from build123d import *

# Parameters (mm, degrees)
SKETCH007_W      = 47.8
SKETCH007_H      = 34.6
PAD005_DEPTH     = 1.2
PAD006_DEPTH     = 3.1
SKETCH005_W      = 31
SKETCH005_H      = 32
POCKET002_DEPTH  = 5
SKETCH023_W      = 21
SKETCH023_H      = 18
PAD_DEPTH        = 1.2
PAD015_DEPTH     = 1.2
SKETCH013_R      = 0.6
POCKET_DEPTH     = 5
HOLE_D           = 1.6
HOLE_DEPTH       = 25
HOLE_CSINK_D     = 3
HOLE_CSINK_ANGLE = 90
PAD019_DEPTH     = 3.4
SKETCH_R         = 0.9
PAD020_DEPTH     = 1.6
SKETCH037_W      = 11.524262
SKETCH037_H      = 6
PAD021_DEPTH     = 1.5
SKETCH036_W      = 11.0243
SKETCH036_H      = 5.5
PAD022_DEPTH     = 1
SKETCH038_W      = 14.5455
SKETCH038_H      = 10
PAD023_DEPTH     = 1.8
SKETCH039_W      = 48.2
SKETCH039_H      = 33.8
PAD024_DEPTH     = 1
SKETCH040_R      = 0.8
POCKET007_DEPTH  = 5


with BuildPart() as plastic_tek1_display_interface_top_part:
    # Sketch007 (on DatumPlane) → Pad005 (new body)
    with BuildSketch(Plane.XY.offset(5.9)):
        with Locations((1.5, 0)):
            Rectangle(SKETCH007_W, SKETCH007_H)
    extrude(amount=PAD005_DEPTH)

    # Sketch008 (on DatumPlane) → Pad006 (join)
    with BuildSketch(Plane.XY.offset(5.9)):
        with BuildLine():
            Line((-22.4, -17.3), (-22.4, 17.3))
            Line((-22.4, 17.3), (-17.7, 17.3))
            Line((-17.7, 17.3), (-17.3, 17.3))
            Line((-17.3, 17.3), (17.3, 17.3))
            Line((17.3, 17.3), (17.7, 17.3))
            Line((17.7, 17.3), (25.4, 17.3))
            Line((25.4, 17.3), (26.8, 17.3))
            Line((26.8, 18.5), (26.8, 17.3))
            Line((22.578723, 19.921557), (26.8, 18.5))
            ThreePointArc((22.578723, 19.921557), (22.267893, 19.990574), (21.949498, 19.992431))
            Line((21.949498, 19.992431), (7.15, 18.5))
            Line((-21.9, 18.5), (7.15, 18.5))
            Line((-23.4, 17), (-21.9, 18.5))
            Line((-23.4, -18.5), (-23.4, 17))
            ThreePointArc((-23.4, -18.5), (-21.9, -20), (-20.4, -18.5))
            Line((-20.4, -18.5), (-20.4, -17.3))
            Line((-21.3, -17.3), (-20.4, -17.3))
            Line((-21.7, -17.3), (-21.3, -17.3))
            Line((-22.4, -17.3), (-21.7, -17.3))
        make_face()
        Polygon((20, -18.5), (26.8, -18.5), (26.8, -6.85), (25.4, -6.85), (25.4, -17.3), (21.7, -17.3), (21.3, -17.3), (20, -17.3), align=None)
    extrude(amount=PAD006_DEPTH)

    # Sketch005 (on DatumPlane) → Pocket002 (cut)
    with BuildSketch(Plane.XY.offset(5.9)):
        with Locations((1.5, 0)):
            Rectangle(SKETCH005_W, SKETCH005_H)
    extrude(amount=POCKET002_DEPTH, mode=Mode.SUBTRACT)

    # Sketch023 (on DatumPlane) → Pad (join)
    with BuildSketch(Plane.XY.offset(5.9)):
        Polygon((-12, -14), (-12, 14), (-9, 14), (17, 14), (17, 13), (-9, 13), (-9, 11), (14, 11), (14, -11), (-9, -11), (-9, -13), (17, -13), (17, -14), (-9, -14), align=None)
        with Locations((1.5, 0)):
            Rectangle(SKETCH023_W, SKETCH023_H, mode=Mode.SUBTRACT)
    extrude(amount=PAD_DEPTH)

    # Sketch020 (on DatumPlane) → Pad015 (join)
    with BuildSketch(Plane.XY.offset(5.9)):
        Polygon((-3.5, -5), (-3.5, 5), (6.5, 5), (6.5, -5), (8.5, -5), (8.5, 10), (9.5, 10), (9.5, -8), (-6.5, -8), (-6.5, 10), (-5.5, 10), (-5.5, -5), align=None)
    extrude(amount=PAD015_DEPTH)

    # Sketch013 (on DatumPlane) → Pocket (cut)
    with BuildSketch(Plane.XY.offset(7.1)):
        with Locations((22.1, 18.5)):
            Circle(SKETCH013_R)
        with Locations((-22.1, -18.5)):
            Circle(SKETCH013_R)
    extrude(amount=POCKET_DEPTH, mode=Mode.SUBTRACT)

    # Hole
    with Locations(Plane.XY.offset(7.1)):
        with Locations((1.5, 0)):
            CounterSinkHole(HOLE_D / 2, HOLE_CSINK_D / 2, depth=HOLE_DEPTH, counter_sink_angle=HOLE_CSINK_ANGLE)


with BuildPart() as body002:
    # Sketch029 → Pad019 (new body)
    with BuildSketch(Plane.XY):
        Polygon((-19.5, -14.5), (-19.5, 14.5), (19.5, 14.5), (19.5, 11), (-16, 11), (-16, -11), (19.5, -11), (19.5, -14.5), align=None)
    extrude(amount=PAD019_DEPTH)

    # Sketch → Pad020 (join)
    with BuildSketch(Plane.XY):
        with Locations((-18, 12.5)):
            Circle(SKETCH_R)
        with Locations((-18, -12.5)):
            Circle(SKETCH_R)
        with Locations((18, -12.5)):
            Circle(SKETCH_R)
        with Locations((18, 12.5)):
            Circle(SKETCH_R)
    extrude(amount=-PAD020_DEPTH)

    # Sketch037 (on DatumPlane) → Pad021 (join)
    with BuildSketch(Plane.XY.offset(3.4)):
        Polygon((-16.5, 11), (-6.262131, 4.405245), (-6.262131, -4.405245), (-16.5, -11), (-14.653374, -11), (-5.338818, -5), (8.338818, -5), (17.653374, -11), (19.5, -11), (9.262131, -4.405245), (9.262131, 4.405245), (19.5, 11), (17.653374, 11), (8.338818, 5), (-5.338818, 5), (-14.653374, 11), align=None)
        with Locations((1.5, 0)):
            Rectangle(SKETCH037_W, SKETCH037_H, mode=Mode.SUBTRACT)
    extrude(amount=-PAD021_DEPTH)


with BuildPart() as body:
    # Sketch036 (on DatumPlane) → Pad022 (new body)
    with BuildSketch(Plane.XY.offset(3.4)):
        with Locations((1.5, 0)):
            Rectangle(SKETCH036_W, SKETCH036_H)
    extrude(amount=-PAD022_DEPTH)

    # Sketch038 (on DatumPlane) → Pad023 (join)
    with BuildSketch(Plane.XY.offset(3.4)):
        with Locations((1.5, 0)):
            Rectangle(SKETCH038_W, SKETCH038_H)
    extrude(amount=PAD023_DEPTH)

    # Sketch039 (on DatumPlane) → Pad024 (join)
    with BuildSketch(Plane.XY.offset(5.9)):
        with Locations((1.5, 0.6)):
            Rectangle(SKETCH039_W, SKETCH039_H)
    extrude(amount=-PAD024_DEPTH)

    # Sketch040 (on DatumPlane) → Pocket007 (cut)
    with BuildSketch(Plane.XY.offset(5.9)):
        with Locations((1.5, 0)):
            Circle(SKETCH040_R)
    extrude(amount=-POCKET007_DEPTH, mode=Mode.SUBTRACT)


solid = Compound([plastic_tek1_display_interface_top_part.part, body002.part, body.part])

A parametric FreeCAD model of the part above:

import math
import FreeCAD as App
import Part
import Sketcher

V = App.Vector
Q = App.Units.Quantity

doc = App.newDocument("Part")
params = doc.addObject("Spreadsheet::Sheet", "Params")
for row, (alias, value) in enumerate([
    ("sketch1_width", "47.8 mm"),
    ("sketch1_height", "34.6 mm"),
    ("pad1_length", "1.2 mm"),
    ("sketch2_radius", "1.5 mm"),
    ("sketch2_width", "2 mm"),
    ("sketch2_width2", "49.2 mm"),
    ("sketch2_width3", "6.8 mm"),
    ("sketch2_width4", "1.4 mm"),
    ("pad2_length", "3.1 mm"),
    ("sketch3_width", "31 mm"),
    ("sketch3_height", "32 mm"),
    ("pocket1_length", "5 mm"),
    ("sketch4_width", "29 mm"),
    ("sketch4_width2", "26 mm"),
    ("sketch4_width3", "23 mm"),
    ("sketch4_width4", "21 mm"),
    ("sketch4_height", "28 mm"),
    ("pad3_length", "1.2 mm"),
    ("sketch5_width", "2 mm"),
    ("sketch5_width2", "1 mm"),
    ("sketch5_width3", "16 mm"),
    ("sketch5_height", "15 mm"),
    ("sketch5_height2", "18 mm"),
    ("pad4_length", "1.2 mm"),
    ("sketch6_diameter", "1.2 mm"),
    ("pocket2_length", "5 mm"),
    ("sketch7_diameter", "1.6 mm"),
    ("hole_diameter", "1.6 mm"),
    ("hole_depth", "25 mm"),
    ("hole_csink_diameter", "3 mm"),
    ("sketch8_width", "39 mm"),
    ("sketch8_height", "29 mm"),
    ("sketch8_height2", "22 mm"),
    ("sketch8_width2", "35.5 mm"),
    ("pad5_length", "3.4 mm"),
    ("sketch9_diameter", "1.8 mm"),
    ("pad6_length", "1.6 mm"),
    ("sketch10_height", "6 mm"),
    ("pad7_length", "1.5 mm"),
    ("sketch11_height", "5.5 mm"),
    ("pad8_length", "1 mm"),
    ("sketch12_height", "10 mm"),
    ("pad9_length", "1.8 mm"),
    ("sketch13_width", "48.2 mm"),
    ("sketch13_height", "33.8 mm"),
    ("pad10_length", "1 mm"),
    ("sketch14_diameter", "1.6 mm"),
    ("pocket3_length", "5 mm"),
], start=1):
    params.set(f"A{row}", alias)
    params.set(f"B{row}", "=" + value)
    params.setAlias(f"B{row}", alias)

body = doc.addObject("PartDesign::Body", "Body")

# Sketch on XY plane
sketch1 = doc.addObject("Sketcher::SketchObject", "Sketch")
body.addObject(sketch1)
sketch1.AttachmentSupport = (doc.XY_Plane, [""])
sketch1.MapMode = "FlatFace"
sketch1.AttachmentOffset = App.Placement(V(0, 0, 5.9), App.Rotation())
sketch1.addGeometry(Part.LineSegment(V(-22, 17, 0), V(-22, -17, 0)), False)
sketch1.addGeometry(Part.LineSegment(V(-22, -17, 0), V(25, -17, 0)), False)
sketch1.addGeometry(Part.LineSegment(V(25, -17, 0), V(25, 17, 0)), False)
sketch1.addGeometry(Part.LineSegment(V(25, 17, 0), V(-22, 17, 0)), False)
sketch1.addConstraint(Sketcher.Constraint("Coincident", 0, 2, 1, 1))
sketch1.addConstraint(Sketcher.Constraint("Coincident", 1, 2, 2, 1))
sketch1.addConstraint(Sketcher.Constraint("Coincident", 2, 2, 3, 1))
sketch1.addConstraint(Sketcher.Constraint("Coincident", 3, 2, 0, 1))
sketch1.addConstraint(Sketcher.Constraint("Vertical", 0))
sketch1.addConstraint(Sketcher.Constraint("Horizontal", 1))
sketch1.addConstraint(Sketcher.Constraint("Vertical", 2))
sketch1.addConstraint(Sketcher.Constraint("Horizontal", 3))
sketch1.addConstraint(Sketcher.Constraint("DistanceX", 1, 1, 1, 2, 47.8))
sketch1.addConstraint(Sketcher.Constraint("DistanceY", 0, 2, 0, 1, 34.6))
sketch1.addConstraint(Sketcher.Constraint("DistanceX", 0, 2, -1, 1, 22.4))
sketch1.addConstraint(Sketcher.Constraint("DistanceY", 0, 2, -1, 1, 17.3))
sketch1.setExpression("Constraints[8]", "Params.sketch1_width")
sketch1.setExpression("Constraints[9]", "Params.sketch1_height")
pad1 = doc.addObject("PartDesign::Pad", "Pad")
body.addObject(pad1)
pad1.Profile = sketch1
pad1.setExpression("Length", "Params.pad1_length")

# Sketch on XY plane
sketch2 = doc.addObject("Sketcher::SketchObject", "Sketch001")
body.addObject(sketch2)
sketch2.AttachmentSupport = (doc.XY_Plane, [""])
sketch2.MapMode = "FlatFace"
sketch2.AttachmentOffset = App.Placement(V(0, 0, 5.9), App.Rotation())
sketch2.addGeometry(Part.LineSegment(V(-22.4, -17.3, 0), V(-22.4, 17.3, 0)), False)
sketch2.addGeometry(Part.LineSegment(V(-22.4, 17.3, 0), V(26.8, 17.3, 0)), False)
sketch2.addGeometry(Part.LineSegment(V(26.8, 17.3, 0), V(26.8, 18.5, 0)), False)
sketch2.addGeometry(Part.LineSegment(V(26.8, 18.5, 0), V(22.6, 19.9, 0)), False)
sketch2.addGeometry(Part.ArcOfCircle(Part.Circle(V(22.1, 18.5, 0), V(0, 0, 1), 1.5), math.radians(71), math.radians(96)), False)
sketch2.addGeometry(Part.LineSegment(V(21.9, 20, 0), V(7.2, 18.5, 0)), False)
sketch2.addGeometry(Part.LineSegment(V(7.2, 18.5, 0), V(-21.9, 18.5, 0)), False)
sketch2.addGeometry(Part.LineSegment(V(-21.9, 18.5, 0), V(-23.4, 17, 0)), False)
sketch2.addGeometry(Part.LineSegment(V(-23.4, 17, 0), V(-23.4, -18.5, 0)), False)
sketch2.addGeometry(Part.ArcOfCircle(Part.Circle(V(-21.9, -18.5, 0), V(0, 0, 1), 1.5), math.radians(180), math.radians(360)), False)
sketch2.addGeometry(Part.LineSegment(V(-20.4, -18.5, 0), V(-20.4, -17.3, 0)), False)
sketch2.addGeometry(Part.LineSegment(V(-20.4, -17.3, 0), V(-22.4, -17.3, 0)), False)
sketch2.addGeometry(Part.LineSegment(V(20, -18.5, 0), V(26.8, -18.5, 0)), False)
sketch2.addGeometry(Part.LineSegment(V(26.8, -18.5, 0), V(26.8, -6.8, 0)), False)
sketch2.addGeometry(Part.LineSegment(V(26.8, -6.8, 0), V(25.4, -6.8, 0)), False)
sketch2.addGeometry(Part.LineSegment(V(25.4, -6.8, 0), V(25.4, -17.3, 0)), False)
sketch2.addGeometry(Part.LineSegment(V(25.4, -17.3, 0), V(20, -17.3, 0)), False)
sketch2.addGeometry(Part.LineSegment(V(20, -17.3, 0), V(20, -18.5, 0)), False)
sketch2.addConstraint(Sketcher.Constraint("Coincident", 0, 2, 1, 1))
sketch2.addConstraint(Sketcher.Constraint("Coincident", 1, 2, 2, 1))
sketch2.addConstraint(Sketcher.Constraint("Coincident", 2, 2, 3, 1))
sketch2.addConstraint(Sketcher.Constraint("Coincident", 3, 2, 4, 1))
sketch2.addConstraint(Sketcher.Constraint("Coincident", 4, 2, 5, 1))
sketch2.addConstraint(Sketcher.Constraint("Coincident", 5, 2, 6, 1))
sketch2.addConstraint(Sketcher.Constraint("Coincident", 6, 2, 7, 1))
sketch2.addConstraint(Sketcher.Constraint("Coincident", 7, 2, 8, 1))
sketch2.addConstraint(Sketcher.Constraint("Tangent", 8, 2, 9, 1))
sketch2.addConstraint(Sketcher.Constraint("Tangent", 9, 2, 10, 1))
sketch2.addConstraint(Sketcher.Constraint("Coincident", 10, 2, 11, 1))
sketch2.addConstraint(Sketcher.Constraint("Coincident", 11, 2, 0, 1))
sketch2.addConstraint(Sketcher.Constraint("Coincident", 12, 2, 13, 1))
sketch2.addConstraint(Sketcher.Constraint("Coincident", 13, 2, 14, 1))
sketch2.addConstraint(Sketcher.Constraint("Coincident", 14, 2, 15, 1))
sketch2.addConstraint(Sketcher.Constraint("Coincident", 15, 2, 16, 1))
sketch2.addConstraint(Sketcher.Constraint("Coincident", 16, 2, 17, 1))
sketch2.addConstraint(Sketcher.Constraint("Coincident", 17, 2, 12, 1))
sketch2.addConstraint(Sketcher.Constraint("Vertical", 0))
sketch2.addConstraint(Sketcher.Constraint("Horizontal", 1))
sketch2.addConstraint(Sketcher.Constraint("Vertical", 2))
sketch2.addConstraint(Sketcher.Constraint("Horizontal", 6))
sketch2.addConstraint(Sketcher.Constraint("Vertical", 8))
sketch2.addConstraint(Sketcher.Constraint("Vertical", 10))
sketch2.addConstraint(Sketcher.Constraint("Horizontal", 11))
sketch2.addConstraint(Sketcher.Constraint("Horizontal", 12))
sketch2.addConstraint(Sketcher.Constraint("Vertical", 13))
sketch2.addConstraint(Sketcher.Constraint("Horizontal", 14))
sketch2.addConstraint(Sketcher.Constraint("Vertical", 15))
sketch2.addConstraint(Sketcher.Constraint("Horizontal", 16))
sketch2.addConstraint(Sketcher.Constraint("Vertical", 17))
sketch2.addConstraint(Sketcher.Constraint("Symmetric", 2, 2, 12, 2, -1))
sketch2.addConstraint(Sketcher.Constraint("Horizontal", 2, 2, 5, 2))
sketch2.addConstraint(Sketcher.Constraint("Horizontal", 9, 2, 12, 2))
sketch2.addConstraint(Sketcher.Constraint("Horizontal", 11, 2, 15, 2))
sketch2.addConstraint(Sketcher.Constraint("Vertical", 9, 3, 6, 2))
sketch2.addConstraint(Sketcher.Constraint("Equal", 2, 10))
sketch2.addConstraint(Sketcher.Constraint("Radius", 9, 1.5))
sketch2.addConstraint(Sketcher.Constraint("DistanceX", 11, 2, 11, 1, 2.0))
sketch2.addConstraint(Sketcher.Constraint("Angle", 7, Q("-135 deg")))
sketch2.addConstraint(Sketcher.Constraint("DistanceX", 1, 1, 1, 2, 49.2))
sketch2.addConstraint(Sketcher.Constraint("DistanceX", 12, 1, 12, 2, 6.8))
sketch2.addConstraint(Sketcher.Constraint("DistanceX", 14, 2, 14, 1, 1.4))
sketch2.addConstraint(Sketcher.Constraint("DistanceY", 0, 1, 0, 2, 34.6))
sketch2.addConstraint(Sketcher.Constraint("DistanceY", 2, 1, 2, 2, 1.2))
sketch2.addConstraint(Sketcher.Constraint("DistanceX", -1, 1, 16, 2, 20.0))
sketch2.addConstraint(Sketcher.Constraint("DistanceX", 6, 2, 6, 1, 29.05))
sketch2.addConstraint(Sketcher.Constraint("DistanceY", 13, 1, 13, 2, 11.65))
sketch2.addConstraint(Sketcher.Constraint("Radius", 4, 1.500024))
sketch2.addConstraint(Sketcher.Constraint("DistanceX", -1, 1, 4, 2, 21.949498))
sketch2.addConstraint(Sketcher.Constraint("DistanceX", 4, 2, 4, 3, 0.150498))
sketch2.addConstraint(Sketcher.Constraint("Distance", 3, 4.454212))
sketch2.addConstraint(Sketcher.Constraint("Distance", 5, 14.874559))
sketch2.setExpression("Constraints[37]", "Params.sketch2_radius")
sketch2.setExpression("Constraints[38]", "Params.sketch2_width")
sketch2.setExpression("Constraints[40]", "Params.sketch2_width2")
sketch2.setExpression("Constraints[41]", "Params.sketch2_width3")
sketch2.setExpression("Constraints[42]", "Params.sketch2_width4")
pad2 = doc.addObject("PartDesign::Pad", "Pad001")
body.addObject(pad2)
pad2.Profile = sketch2
pad2.setExpression("Length", "Params.pad2_length")

# Sketch on XY plane
sketch3 = doc.addObject("Sketcher::SketchObject", "Sketch002")
body.addObject(sketch3)
sketch3.AttachmentSupport = (doc.XY_Plane, [""])
sketch3.MapMode = "FlatFace"
sketch3.AttachmentOffset = App.Placement(V(0, 0, 5.9), App.Rotation())
sketch3.addGeometry(Part.LineSegment(V(-14, 16, 0), V(-14, -16, 0)), False)
sketch3.addGeometry(Part.LineSegment(V(-14, -16, 0), V(17, -16, 0)), False)
sketch3.addGeometry(Part.LineSegment(V(17, -16, 0), V(17, 16, 0)), False)
sketch3.addGeometry(Part.LineSegment(V(17, 16, 0), V(-14, 16, 0)), False)
sketch3.addConstraint(Sketcher.Constraint("Coincident", 0, 2, 1, 1))
sketch3.addConstraint(Sketcher.Constraint("Coincident", 1, 2, 2, 1))
sketch3.addConstraint(Sketcher.Constraint("Coincident", 2, 2, 3, 1))
sketch3.addConstraint(Sketcher.Constraint("Coincident", 3, 2, 0, 1))
sketch3.addConstraint(Sketcher.Constraint("Vertical", 0))
sketch3.addConstraint(Sketcher.Constraint("Horizontal", 1))
sketch3.addConstraint(Sketcher.Constraint("Vertical", 2))
sketch3.addConstraint(Sketcher.Constraint("Horizontal", 3))
sketch3.addConstraint(Sketcher.Constraint("DistanceX", 1, 1, 1, 2, 31.0))
sketch3.addConstraint(Sketcher.Constraint("DistanceY", 0, 2, 0, 1, 32.0))
sketch3.addConstraint(Sketcher.Constraint("DistanceX", 0, 2, -1, 1, 14.0))
sketch3.addConstraint(Sketcher.Constraint("DistanceY", 0, 2, -1, 1, 16.0))
sketch3.setExpression("Constraints[8]", "Params.sketch3_width")
sketch3.setExpression("Constraints[9]", "Params.sketch3_height")
pocket1 = doc.addObject("PartDesign::Pocket", "Pocket")
body.addObject(pocket1)
pocket1.Profile = sketch3
pocket1.setExpression("Length", "Params.pocket1_length")
pocket1.Reversed = True

# Sketch on XY plane
sketch4 = doc.addObject("Sketcher::SketchObject", "Sketch003")
body.addObject(sketch4)
sketch4.AttachmentSupport = (doc.XY_Plane, [""])
sketch4.MapMode = "FlatFace"
sketch4.AttachmentOffset = App.Placement(V(0, 0, 5.9), App.Rotation())
sketch4.addGeometry(Part.LineSegment(V(-12, 14, 0), V(-12, -14, 0)), False)
sketch4.addGeometry(Part.LineSegment(V(-12, -14, 0), V(17, -14, 0)), False)
sketch4.addGeometry(Part.LineSegment(V(17, -14, 0), V(17, -13, 0)), False)
sketch4.addGeometry(Part.LineSegment(V(17, -13, 0), V(-9, -13, 0)), False)
sketch4.addGeometry(Part.LineSegment(V(-9, -13, 0), V(-9, -11, 0)), False)
sketch4.addGeometry(Part.LineSegment(V(-9, -11, 0), V(14, -11, 0)), False)
sketch4.addGeometry(Part.LineSegment(V(14, -11, 0), V(14, 11, 0)), False)
sketch4.addGeometry(Part.LineSegment(V(14, 11, 0), V(-9, 11, 0)), False)
sketch4.addGeometry(Part.LineSegment(V(-9, 11, 0), V(-9, 13, 0)), False)
sketch4.addGeometry(Part.LineSegment(V(-9, 13, 0), V(17, 13, 0)), False)
sketch4.addGeometry(Part.LineSegment(V(17, 13, 0), V(17, 14, 0)), False)
sketch4.addGeometry(Part.LineSegment(V(17, 14, 0), V(-12, 14, 0)), False)
sketch4.addGeometry(Part.LineSegment(V(-9, -9, 0), V(-9, 9, 0)), False)
sketch4.addGeometry(Part.LineSegment(V(-9, 9, 0), V(12, 9, 0)), False)
sketch4.addGeometry(Part.LineSegment(V(12, 9, 0), V(12, -9, 0)), False)
sketch4.addGeometry(Part.LineSegment(V(12, -9, 0), V(-9, -9, 0)), False)
sketch4.addConstraint(Sketcher.Constraint("Coincident", 0, 2, 1, 1))
sketch4.addConstraint(Sketcher.Constraint("Coincident", 1, 2, 2, 1))
sketch4.addConstraint(Sketcher.Constraint("Coincident", 2, 2, 3, 1))
sketch4.addConstraint(Sketcher.Constraint("Coincident", 3, 2, 4, 1))
sketch4.addConstraint(Sketcher.Constraint("Coincident", 4, 2, 5, 1))
sketch4.addConstraint(Sketcher.Constraint("Coincident", 5, 2, 6, 1))
sketch4.addConstraint(Sketcher.Constraint("Coincident", 6, 2, 7, 1))
sketch4.addConstraint(Sketcher.Constraint("Coincident", 7, 2, 8, 1))
sketch4.addConstraint(Sketcher.Constraint("Coincident", 8, 2, 9, 1))
sketch4.addConstraint(Sketcher.Constraint("Coincident", 9, 2, 10, 1))
sketch4.addConstraint(Sketcher.Constraint("Coincident", 10, 2, 11, 1))
sketch4.addConstraint(Sketcher.Constraint("Coincident", 11, 2, 0, 1))
sketch4.addConstraint(Sketcher.Constraint("Coincident", 12, 2, 13, 1))
sketch4.addConstraint(Sketcher.Constraint("Coincident", 13, 2, 14, 1))
sketch4.addConstraint(Sketcher.Constraint("Coincident", 14, 2, 15, 1))
sketch4.addConstraint(Sketcher.Constraint("Coincident", 15, 2, 12, 1))
sketch4.addConstraint(Sketcher.Constraint("Vertical", 0))
sketch4.addConstraint(Sketcher.Constraint("Horizontal", 1))
sketch4.addConstraint(Sketcher.Constraint("Vertical", 2))
sketch4.addConstraint(Sketcher.Constraint("Horizontal", 3))
sketch4.addConstraint(Sketcher.Constraint("Vertical", 4))
sketch4.addConstraint(Sketcher.Constraint("Horizontal", 5))
sketch4.addConstraint(Sketcher.Constraint("Vertical", 6))
sketch4.addConstraint(Sketcher.Constraint("Horizontal", 7))
sketch4.addConstraint(Sketcher.Constraint("Vertical", 8))
sketch4.addConstraint(Sketcher.Constraint("Horizontal", 9))
sketch4.addConstraint(Sketcher.Constraint("Vertical", 10))
sketch4.addConstraint(Sketcher.Constraint("Horizontal", 11))
sketch4.addConstraint(Sketcher.Constraint("Vertical", 12))
sketch4.addConstraint(Sketcher.Constraint("Horizontal", 13))
sketch4.addConstraint(Sketcher.Constraint("Vertical", 14))
sketch4.addConstraint(Sketcher.Constraint("Horizontal", 15))
sketch4.addConstraint(Sketcher.Constraint("Symmetric", 4, 2, 7, 2, -1))
sketch4.addConstraint(Sketcher.Constraint("Symmetric", 2, 2, 9, 2, -1))
sketch4.addConstraint(Sketcher.Constraint("Vertical", 8, 2, 12, 2))
sketch4.addConstraint(Sketcher.Constraint("Equal", 2, 10))
sketch4.addConstraint(Sketcher.Constraint("DistanceX", 1, 1, 1, 2, 29.0))
sketch4.addConstraint(Sketcher.Constraint("DistanceX", 3, 2, 3, 1, 26.0))
sketch4.addConstraint(Sketcher.Constraint("DistanceX", 5, 1, 5, 2, 23.0))
sketch4.addConstraint(Sketcher.Constraint("DistanceX", 13, 1, 13, 2, 21.0))
sketch4.addConstraint(Sketcher.Constraint("DistanceY", 0, 2, 0, 1, 28.0))
sketch4.addConstraint(Sketcher.Constraint("DistanceY", 2, 1, 2, 2, 1.0))
sketch4.addConstraint(Sketcher.Constraint("DistanceY", 4, 1, 4, 2, 2.0))
sketch4.addConstraint(Sketcher.Constraint("DistanceY", 12, 1, 12, 2, 18.0))
sketch4.addConstraint(Sketcher.Constraint("DistanceX", 0, 2, -1, 1, 12.0))
sketch4.addConstraint(Sketcher.Constraint("DistanceY", -1, 1, 12, 2, 9.0))
sketch4.setExpression("Constraints[36]", "Params.sketch4_width")
sketch4.setExpression("Constraints[37]", "Params.sketch4_width2")
sketch4.setExpression("Constraints[38]", "Params.sketch4_width3")
sketch4.setExpression("Constraints[39]", "Params.sketch4_width4")
sketch4.setExpression("Constraints[40]", "Params.sketch4_height")
pad3 = doc.addObject("PartDesign::Pad", "Pad002")
body.addObject(pad3)
pad3.Profile = sketch4
pad3.setExpression("Length", "Params.pad3_length")

# Sketch on XY plane
sketch5 = doc.addObject("Sketcher::SketchObject", "Sketch004")
body.addObject(sketch5)
sketch5.AttachmentSupport = (doc.XY_Plane, [""])
sketch5.MapMode = "FlatFace"
sketch5.AttachmentOffset = App.Placement(V(0, 0, 5.9), App.Rotation())
sketch5.addGeometry(Part.LineSegment(V(-3.5, 5, 0), V(-3.5, -5, 0)), False)
sketch5.addGeometry(Part.LineSegment(V(-3.5, -5, 0), V(-5.5, -5, 0)), False)
sketch5.addGeometry(Part.LineSegment(V(-5.5, -5, 0), V(-5.5, 10, 0)), False)
sketch5.addGeometry(Part.LineSegment(V(-5.5, 10, 0), V(-6.5, 10, 0)), False)
sketch5.addGeometry(Part.LineSegment(V(-6.5, 10, 0), V(-6.5, -8, 0)), False)
sketch5.addGeometry(Part.LineSegment(V(-6.5, -8, 0), V(9.5, -8, 0)), False)
sketch5.addGeometry(Part.LineSegment(V(9.5, -8, 0), V(9.5, 10, 0)), False)
sketch5.addGeometry(Part.LineSegment(V(9.5, 10, 0), V(8.5, 10, 0)), False)
sketch5.addGeometry(Part.LineSegment(V(8.5, 10, 0), V(8.5, -5, 0)), False)
sketch5.addGeometry(Part.LineSegment(V(8.5, -5, 0), V(6.5, -5, 0)), False)
sketch5.addGeometry(Part.LineSegment(V(6.5, -5, 0), V(6.5, 5, 0)), False)
sketch5.addGeometry(Part.LineSegment(V(6.5, 5, 0), V(-3.5, 5, 0)), False)
sketch5.addConstraint(Sketcher.Constraint("Coincident", 0, 2, 1, 1))
sketch5.addConstraint(Sketcher.Constraint("Coincident", 1, 2, 2, 1))
sketch5.addConstraint(Sketcher.Constraint("Coincident", 2, 2, 3, 1))
sketch5.addConstraint(Sketcher.Constraint("Coincident", 3, 2, 4, 1))
sketch5.addConstraint(Sketcher.Constraint("Coincident", 4, 2, 5, 1))
sketch5.addConstraint(Sketcher.Constraint("Coincident", 5, 2, 6, 1))
sketch5.addConstraint(Sketcher.Constraint("Coincident", 6, 2, 7, 1))
sketch5.addConstraint(Sketcher.Constraint("Coincident", 7, 2, 8, 1))
sketch5.addConstraint(Sketcher.Constraint("Coincident", 8, 2, 9, 1))
sketch5.addConstraint(Sketcher.Constraint("Coincident", 9, 2, 10, 1))
sketch5.addConstraint(Sketcher.Constraint("Coincident", 10, 2, 11, 1))
sketch5.addConstraint(Sketcher.Constraint("Coincident", 11, 2, 0, 1))
sketch5.addConstraint(Sketcher.Constraint("Vertical", 0))
sketch5.addConstraint(Sketcher.Constraint("Horizontal", 1))
sketch5.addConstraint(Sketcher.Constraint("Vertical", 2))
sketch5.addConstraint(Sketcher.Constraint("Horizontal", 3))
sketch5.addConstraint(Sketcher.Constraint("Vertical", 4))
sketch5.addConstraint(Sketcher.Constraint("Horizontal", 5))
sketch5.addConstraint(Sketcher.Constraint("Vertical", 6))
sketch5.addConstraint(Sketcher.Constraint("Horizontal", 7))
sketch5.addConstraint(Sketcher.Constraint("Vertical", 8))
sketch5.addConstraint(Sketcher.Constraint("Horizontal", 9))
sketch5.addConstraint(Sketcher.Constraint("Vertical", 10))
sketch5.addConstraint(Sketcher.Constraint("Horizontal", 11))
sketch5.addConstraint(Sketcher.Constraint("Horizontal", 3, 2, 6, 2))
sketch5.addConstraint(Sketcher.Constraint("Horizontal", 1, 2, 8, 2))
sketch5.addConstraint(Sketcher.Constraint("Equal", 3, 7))
sketch5.addConstraint(Sketcher.Constraint("Equal", 1, 9))
sketch5.addConstraint(Sketcher.Constraint("Equal", 11, 0))
sketch5.addConstraint(Sketcher.Constraint("DistanceX", 1, 2, 1, 1, 2.0))
sketch5.addConstraint(Sketcher.Constraint("DistanceX", 3, 2, 3, 1, 1.0))
sketch5.addConstraint(Sketcher.Constraint("DistanceX", 5, 1, 5, 2, 16.0))
sketch5.addConstraint(Sketcher.Constraint("DistanceY", 2, 1, 2, 2, 15.0))
sketch5.addConstraint(Sketcher.Constraint("DistanceY", 4, 2, 4, 1, 18.0))
sketch5.addConstraint(Sketcher.Constraint("DistanceY", 0, 2, -1, 1, 5.0))
sketch5.addConstraint(Sketcher.Constraint("DistanceX", 0, 2, -1, 1, 3.5))
sketch5.setExpression("Constraints[29]", "Params.sketch5_width")
sketch5.setExpression("Constraints[30]", "Params.sketch5_width2")
sketch5.setExpression("Constraints[31]", "Params.sketch5_width3")
sketch5.setExpression("Constraints[32]", "Params.sketch5_height")
sketch5.setExpression("Constraints[33]", "Params.sketch5_height2")
pad4 = doc.addObject("PartDesign::Pad", "Pad003")
body.addObject(pad4)
pad4.Profile = sketch5
pad4.setExpression("Length", "Params.pad4_length")

# Sketch on XY plane
sketch6 = doc.addObject("Sketcher::SketchObject", "Sketch005")
body.addObject(sketch6)
sketch6.AttachmentSupport = (doc.XY_Plane, [""])
sketch6.MapMode = "FlatFace"
sketch6.AttachmentOffset = App.Placement(V(0, 0, 7.1), App.Rotation())
sketch6.addGeometry(Part.Circle(V(22.1, 18.5, 0), V(0, 0, 1), 0.6), False)
sketch6.addGeometry(Part.Circle(V(-22.1, -18.5, 0), V(0, 0, 1), 0.6), False)
sketch6.addConstraint(Sketcher.Constraint("Equal", 0, 1))
sketch6.addConstraint(Sketcher.Constraint("Symmetric", 0, 3, 1, 3, -1, 1))
sketch6.addConstraint(Sketcher.Constraint("Diameter", 0, 1.2))
sketch6.addConstraint(Sketcher.Constraint("DistanceY", 1, 3, 0, 3, 37.0))
sketch6.addConstraint(Sketcher.Constraint("DistanceX", -1, 1, 0, 3, 22.1))
sketch6.setExpression("Constraints[2]", "Params.sketch6_diameter")
pocket2 = doc.addObject("PartDesign::Pocket", "Pocket001")
body.addObject(pocket2)
pocket2.Profile = sketch6
pocket2.setExpression("Length", "Params.pocket2_length")
pocket2.Reversed = True

# Sketch on XY plane
sketch7 = doc.addObject("Sketcher::SketchObject", "Sketch006")
body.addObject(sketch7)
sketch7.AttachmentSupport = (doc.XY_Plane, [""])
sketch7.MapMode = "FlatFace"
sketch7.AttachmentOffset = App.Placement(V(0, 0, 7.1), App.Rotation())
sketch7.addGeometry(Part.Circle(V(1.5, 0, 0), V(0, 0, 1), 0.8), False)
sketch7.addConstraint(Sketcher.Constraint("PointOnObject", 0, 3, -1))
sketch7.addConstraint(Sketcher.Constraint("Diameter", 0, 1.6))
sketch7.addConstraint(Sketcher.Constraint("DistanceX", -1, 1, 0, 3, 1.5))
sketch7.setExpression("Constraints[1]", "Params.sketch7_diameter")
doc.recompute()
hole = doc.addObject("PartDesign::Hole", "Hole")
body.addObject(hole)
hole.Profile = sketch7
hole.ThreadType = "None"
hole.setExpression("Diameter", "Params.hole_diameter")
hole.DepthType = "Dimension"
hole.setExpression("Depth", "Params.hole_depth")
hole.DrillPoint = "Flat"
hole.HoleCutType = "Countersink"
hole.setExpression("HoleCutDiameter", "Params.hole_csink_diameter")
hole.HoleCutCountersinkAngle = 90
body2 = doc.addObject("PartDesign::Body", "Body001")

# Sketch on XY plane
sketch8 = doc.addObject("Sketcher::SketchObject", "Sketch007")
body2.addObject(sketch8)
sketch8.AttachmentSupport = (doc.getObject("XY_Plane001"), [""])
sketch8.MapMode = "FlatFace"
sketch8.addGeometry(Part.LineSegment(V(-19.5, 14.5, 0), V(-19.5, -14.5, 0)), False)
sketch8.addGeometry(Part.LineSegment(V(-19.5, -14.5, 0), V(19.5, -14.5, 0)), False)
sketch8.addGeometry(Part.LineSegment(V(19.5, -14.5, 0), V(19.5, -11, 0)), False)
sketch8.addGeometry(Part.LineSegment(V(19.5, -11, 0), V(-16, -11, 0)), False)
sketch8.addGeometry(Part.LineSegment(V(-16, -11, 0), V(-16, 11, 0)), False)
sketch8.addGeometry(Part.LineSegment(V(-16, 11, 0), V(19.5, 11, 0)), False)
sketch8.addGeometry(Part.LineSegment(V(19.5, 11, 0), V(19.5, 14.5, 0)), False)
sketch8.addGeometry(Part.LineSegment(V(19.5, 14.5, 0), V(-19.5, 14.5, 0)), False)
sketch8.addConstraint(Sketcher.Constraint("Coincident", 0, 2, 1, 1))
sketch8.addConstraint(Sketcher.Constraint("Coincident", 1, 2, 2, 1))
sketch8.addConstraint(Sketcher.Constraint("Coincident", 2, 2, 3, 1))
sketch8.addConstraint(Sketcher.Constraint("Coincident", 3, 2, 4, 1))
sketch8.addConstraint(Sketcher.Constraint("Coincident", 4, 2, 5, 1))
sketch8.addConstraint(Sketcher.Constraint("Coincident", 5, 2, 6, 1))
sketch8.addConstraint(Sketcher.Constraint("Coincident", 6, 2, 7, 1))
sketch8.addConstraint(Sketcher.Constraint("Coincident", 7, 2, 0, 1))
sketch8.addConstraint(Sketcher.Constraint("Vertical", 0))
sketch8.addConstraint(Sketcher.Constraint("Horizontal", 1))
sketch8.addConstraint(Sketcher.Constraint("Vertical", 2))
sketch8.addConstraint(Sketcher.Constraint("Horizontal", 3))
sketch8.addConstraint(Sketcher.Constraint("Vertical", 4))
sketch8.addConstraint(Sketcher.Constraint("Horizontal", 5))
sketch8.addConstraint(Sketcher.Constraint("Vertical", 6))
sketch8.addConstraint(Sketcher.Constraint("Horizontal", 7))
sketch8.addConstraint(Sketcher.Constraint("Symmetric", 0, 2, 6, 2, -1, 1))
sketch8.addConstraint(Sketcher.Constraint("Symmetric", 2, 2, 5, 2, -1))
sketch8.addConstraint(Sketcher.Constraint("DistanceX", 1, 1, 1, 2, 39.0))
sketch8.addConstraint(Sketcher.Constraint("DistanceY", 0, 2, 0, 1, 29.0))
sketch8.addConstraint(Sketcher.Constraint("DistanceY", 4, 1, 4, 2, 22.0))
sketch8.addConstraint(Sketcher.Constraint("DistanceX", 3, 2, 3, 1, 35.5))
sketch8.setExpression("Constraints[18]", "Params.sketch8_width")
sketch8.setExpression("Constraints[19]", "Params.sketch8_height")
sketch8.setExpression("Constraints[20]", "Params.sketch8_height2")
sketch8.setExpression("Constraints[21]", "Params.sketch8_width2")
pad5 = doc.addObject("PartDesign::Pad", "Pad004")
body2.addObject(pad5)
pad5.Profile = sketch8
pad5.setExpression("Length", "Params.pad5_length")

# Sketch on XY plane
sketch9 = doc.addObject("Sketcher::SketchObject", "Sketch008")
body2.addObject(sketch9)
sketch9.AttachmentSupport = (doc.getObject("XY_Plane001"), [""])
sketch9.MapMode = "FlatFace"
sketch9.addGeometry(Part.Circle(V(-18, 12.5, 0), V(0, 0, 1), 0.9), False)
sketch9.addGeometry(Part.Circle(V(-18, -12.5, 0), V(0, 0, 1), 0.9), False)
sketch9.addGeometry(Part.Circle(V(18, -12.5, 0), V(0, 0, 1), 0.9), False)
sketch9.addGeometry(Part.Circle(V(18, 12.5, 0), V(0, 0, 1), 0.9), False)
sketch9.addConstraint(Sketcher.Constraint("Equal", 0, 1))
sketch9.addConstraint(Sketcher.Constraint("Equal", 1, 2))
sketch9.addConstraint(Sketcher.Constraint("Equal", 2, 3))
sketch9.addConstraint(Sketcher.Constraint("Symmetric", 0, 3, 2, 3, -1, 1))
sketch9.addConstraint(Sketcher.Constraint("Symmetric", 1, 3, 3, 3, -1, 1))
sketch9.addConstraint(Sketcher.Constraint("Symmetric", 1, 3, 2, 3, -2))
sketch9.addConstraint(Sketcher.Constraint("Diameter", 0, 1.8))
sketch9.addConstraint(Sketcher.Constraint("DistanceX", 0, 3, -1, 1, 18.0))
sketch9.addConstraint(Sketcher.Constraint("DistanceY", 1, 3, 0, 3, 25.0))
sketch9.setExpression("Constraints[6]", "Params.sketch9_diameter")
pad6 = doc.addObject("PartDesign::Pad", "Pad005")
body2.addObject(pad6)
pad6.Profile = sketch9
pad6.setExpression("Length", "Params.pad6_length")
pad6.Reversed = True

# Sketch on XY plane
sketch10 = doc.addObject("Sketcher::SketchObject", "Sketch009")
body2.addObject(sketch10)
sketch10.AttachmentSupport = (doc.getObject("XY_Plane001"), [""])
sketch10.MapMode = "FlatFace"
sketch10.AttachmentOffset = App.Placement(V(0, 0, 3.4), App.Rotation())
sketch10.addGeometry(Part.LineSegment(V(-16.5, 11, 0), V(-6.3, 4.4, 0)), False)
sketch10.addGeometry(Part.LineSegment(V(-6.3, 4.4, 0), V(-6.3, -4.4, 0)), False)
sketch10.addGeometry(Part.LineSegment(V(-6.3, -4.4, 0), V(-16.5, -11, 0)), False)
sketch10.addGeometry(Part.LineSegment(V(-16.5, -11, 0), V(-14.7, -11, 0)), False)
sketch10.addGeometry(Part.LineSegment(V(-14.7, -11, 0), V(-5.3, -5, 0)), False)
sketch10.addGeometry(Part.LineSegment(V(-5.3, -5, 0), V(8.3, -5, 0)), False)
sketch10.addGeometry(Part.LineSegment(V(8.3, -5, 0), V(17.7, -11, 0)), False)
sketch10.addGeometry(Part.LineSegment(V(17.7, -11, 0), V(19.5, -11, 0)), False)
sketch10.addGeometry(Part.LineSegment(V(19.5, -11, 0), V(9.3, -4.4, 0)), False)
sketch10.addGeometry(Part.LineSegment(V(9.3, -4.4, 0), V(9.3, 4.4, 0)), False)
sketch10.addGeometry(Part.LineSegment(V(9.3, 4.4, 0), V(19.5, 11, 0)), False)
sketch10.addGeometry(Part.LineSegment(V(19.5, 11, 0), V(17.7, 11, 0)), False)
sketch10.addGeometry(Part.LineSegment(V(17.7, 11, 0), V(8.3, 5, 0)), False)
sketch10.addGeometry(Part.LineSegment(V(8.3, 5, 0), V(-5.3, 5, 0)), False)
sketch10.addGeometry(Part.LineSegment(V(-5.3, 5, 0), V(-14.7, 11, 0)), False)
sketch10.addGeometry(Part.LineSegment(V(-14.7, 11, 0), V(-16.5, 11, 0)), False)
sketch10.addGeometry(Part.LineSegment(V(7.3, -3, 0), V(-4.3, -3, 0)), False)
sketch10.addGeometry(Part.LineSegment(V(-4.3, -3, 0), V(-4.3, 3, 0)), False)
sketch10.addGeometry(Part.LineSegment(V(-4.3, 3, 0), V(7.3, 3, 0)), False)
sketch10.addGeometry(Part.LineSegment(V(7.3, 3, 0), V(7.3, -3, 0)), False)
sketch10.addConstraint(Sketcher.Constraint("Coincident", 0, 2, 1, 1))
sketch10.addConstraint(Sketcher.Constraint("Coincident", 1, 2, 2, 1))
sketch10.addConstraint(Sketcher.Constraint("Coincident", 2, 2, 3, 1))
sketch10.addConstraint(Sketcher.Constraint("Coincident", 3, 2, 4, 1))
sketch10.addConstraint(Sketcher.Constraint("Coincident", 4, 2, 5, 1))
sketch10.addConstraint(Sketcher.Constraint("Coincident", 5, 2, 6, 1))
sketch10.addConstraint(Sketcher.Constraint("Coincident", 6, 2, 7, 1))
sketch10.addConstraint(Sketcher.Constraint("Coincident", 7, 2, 8, 1))
sketch10.addConstraint(Sketcher.Constraint("Coincident", 8, 2, 9, 1))
sketch10.addConstraint(Sketcher.Constraint("Coincident", 9, 2, 10, 1))
sketch10.addConstraint(Sketcher.Constraint("Coincident", 10, 2, 11, 1))
sketch10.addConstraint(Sketcher.Constraint("Coincident", 11, 2, 12, 1))
sketch10.addConstraint(Sketcher.Constraint("Coincident", 12, 2, 13, 1))
sketch10.addConstraint(Sketcher.Constraint("Coincident", 13, 2, 14, 1))
sketch10.addConstraint(Sketcher.Constraint("Coincident", 14, 2, 15, 1))
sketch10.addConstraint(Sketcher.Constraint("Coincident", 15, 2, 0, 1))
sketch10.addConstraint(Sketcher.Constraint("Coincident", 16, 2, 17, 1))
sketch10.addConstraint(Sketcher.Constraint("Coincident", 17, 2, 18, 1))
sketch10.addConstraint(Sketcher.Constraint("Coincident", 18, 2, 19, 1))
sketch10.addConstraint(Sketcher.Constraint("Coincident", 19, 2, 16, 1))
sketch10.addConstraint(Sketcher.Constraint("Vertical", 1))
sketch10.addConstraint(Sketcher.Constraint("Horizontal", 3))
sketch10.addConstraint(Sketcher.Constraint("Horizontal", 5))
sketch10.addConstraint(Sketcher.Constraint("Horizontal", 7))
sketch10.addConstraint(Sketcher.Constraint("Vertical", 9))
sketch10.addConstraint(Sketcher.Constraint("Horizontal", 11))
sketch10.addConstraint(Sketcher.Constraint("Horizontal", 13))
sketch10.addConstraint(Sketcher.Constraint("Horizontal", 15))
sketch10.addConstraint(Sketcher.Constraint("Horizontal", 16))
sketch10.addConstraint(Sketcher.Constraint("Vertical", 17))
sketch10.addConstraint(Sketcher.Constraint("Horizontal", 18))
sketch10.addConstraint(Sketcher.Constraint("Vertical", 19))
sketch10.addConstraint(Sketcher.Constraint("Symmetric", 7, 2, 10, 2, -1))
sketch10.addConstraint(Sketcher.Constraint("Symmetric", 5, 2, 12, 2, -1))
sketch10.addConstraint(Sketcher.Constraint("Symmetric", 3, 2, 14, 2, -1))
sketch10.addConstraint(Sketcher.Constraint("Parallel", 2, 4))
sketch10.addConstraint(Sketcher.Constraint("Parallel", 0, 6))
sketch10.addConstraint(Sketcher.Constraint("Parallel", 6, 8))
sketch10.addConstraint(Sketcher.Constraint("Parallel", 4, 10))
sketch10.addConstraint(Sketcher.Constraint("Parallel", 10, 12))
sketch10.addConstraint(Sketcher.Constraint("Parallel", 8, 14))
sketch10.addConstraint(Sketcher.Constraint("Horizontal", 3, 2, 6, 2))
sketch10.addConstraint(Sketcher.Constraint("Horizontal", 1, 2, 8, 2))
sketch10.addConstraint(Sketcher.Constraint("Horizontal", 0, 2, 9, 2))
sketch10.addConstraint(Sketcher.Constraint("Vertical", 6, 2, 11, 2))
sketch10.addConstraint(Sketcher.Constraint("Equal", 3, 7))
sketch10.addConstraint(Sketcher.Constraint("DistanceY", 17, 1, 17, 2, 6.0))
sketch10.addConstraint(Sketcher.Constraint("DistanceY", 2, 2, -1, 1, 11.0))
sketch10.addConstraint(Sketcher.Constraint("DistanceY", 4, 2, -1, 1, 5.0))
sketch10.addConstraint(Sketcher.Constraint("DistanceY", 16, 2, -1, 1, 3.0))
sketch10.addConstraint(Sketcher.Constraint("DistanceX", 1, 2, 16, 2, 2.0))
sketch10.addConstraint(Sketcher.Constraint("DistanceX", 18, 2, 9, 2, 2.0))
sketch10.addConstraint(Sketcher.Constraint("DistanceX", 2, 2, -1, 1, 16.5))
sketch10.addConstraint(Sketcher.Constraint("DistanceX", -1, 1, 7, 2, 19.5))
sketch10.addConstraint(Sketcher.Constraint("DistanceY", 1, 2, 1, 1, 8.81049))
sketch10.addConstraint(Sketcher.Constraint("DistanceX", 3, 1, 3, 2, 1.846626))
sketch10.addConstraint(Sketcher.Constraint("DistanceX", 5, 1, 5, 2, 13.677636))
sketch10.setExpression("Constraints[46]", "Params.sketch10_height")
pad7 = doc.addObject("PartDesign::Pad", "Pad006")
body2.addObject(pad7)
pad7.Profile = sketch10
pad7.setExpression("Length", "Params.pad7_length")
pad7.Reversed = True
body3 = doc.addObject("PartDesign::Body", "Body002")

# Sketch on XY plane
sketch11 = doc.addObject("Sketcher::SketchObject", "Sketch010")
body3.addObject(sketch11)
sketch11.AttachmentSupport = (doc.getObject("XY_Plane002"), [""])
sketch11.MapMode = "FlatFace"
sketch11.AttachmentOffset = App.Placement(V(0, 0, 3.4), App.Rotation())
sketch11.addGeometry(Part.LineSegment(V(-4, 3, 0), V(-4, -3, 0)), False)
sketch11.addGeometry(Part.LineSegment(V(-4, -3, 0), V(7, -3, 0)), False)
sketch11.addGeometry(Part.LineSegment(V(7, -3, 0), V(7, 3, 0)), False)
sketch11.addGeometry(Part.LineSegment(V(7, 3, 0), V(-4, 3, 0)), False)
sketch11.addConstraint(Sketcher.Constraint("Coincident", 0, 2, 1, 1))
sketch11.addConstraint(Sketcher.Constraint("Coincident", 1, 2, 2, 1))
sketch11.addConstraint(Sketcher.Constraint("Coincident", 2, 2, 3, 1))
sketch11.addConstraint(Sketcher.Constraint("Coincident", 3, 2, 0, 1))
sketch11.addConstraint(Sketcher.Constraint("Vertical", 0))
sketch11.addConstraint(Sketcher.Constraint("Horizontal", 1))
sketch11.addConstraint(Sketcher.Constraint("Vertical", 2))
sketch11.addConstraint(Sketcher.Constraint("Horizontal", 3))
sketch11.addConstraint(Sketcher.Constraint("DistanceY", 0, 2, 0, 1, 5.5))
sketch11.addConstraint(Sketcher.Constraint("DistanceY", 0, 2, -1, 1, 2.75))
sketch11.addConstraint(Sketcher.Constraint("DistanceX", 1, 1, 1, 2, 11.0243))
sketch11.addConstraint(Sketcher.Constraint("DistanceX", 0, 2, -1, 1, 4.01215))
sketch11.setExpression("Constraints[8]", "Params.sketch11_height")
pad8 = doc.addObject("PartDesign::Pad", "Pad007")
body3.addObject(pad8)
pad8.Profile = sketch11
pad8.setExpression("Length", "Params.pad8_length")
pad8.Reversed = True

# Sketch on XY plane
sketch12 = doc.addObject("Sketcher::SketchObject", "Sketch011")
body3.addObject(sketch12)
sketch12.AttachmentSupport = (doc.getObject("XY_Plane002"), [""])
sketch12.MapMode = "FlatFace"
sketch12.AttachmentOffset = App.Placement(V(0, 0, 3.4), App.Rotation())
sketch12.addGeometry(Part.LineSegment(V(-6, 5, 0), V(-6, -5, 0)), False)
sketch12.addGeometry(Part.LineSegment(V(-6, -5, 0), V(9, -5, 0)), False)
sketch12.addGeometry(Part.LineSegment(V(9, -5, 0), V(9, 5, 0)), False)
sketch12.addGeometry(Part.LineSegment(V(9, 5, 0), V(-6, 5, 0)), False)
sketch12.addConstraint(Sketcher.Constraint("Coincident", 0, 2, 1, 1))
sketch12.addConstraint(Sketcher.Constraint("Coincident", 1, 2, 2, 1))
sketch12.addConstraint(Sketcher.Constraint("Coincident", 2, 2, 3, 1))
sketch12.addConstraint(Sketcher.Constraint("Coincident", 3, 2, 0, 1))
sketch12.addConstraint(Sketcher.Constraint("Vertical", 0))
sketch12.addConstraint(Sketcher.Constraint("Horizontal", 1))
sketch12.addConstraint(Sketcher.Constraint("Vertical", 2))
sketch12.addConstraint(Sketcher.Constraint("Horizontal", 3))
sketch12.addConstraint(Sketcher.Constraint("DistanceY", 0, 2, 0, 1, 10.0))
sketch12.addConstraint(Sketcher.Constraint("DistanceY", 0, 2, -1, 1, 5.0))
sketch12.addConstraint(Sketcher.Constraint("DistanceX", 1, 1, 1, 2, 14.5455))
sketch12.addConstraint(Sketcher.Constraint("DistanceX", 0, 2, -1, 1, 5.77275))
sketch12.setExpression("Constraints[8]", "Params.sketch12_height")
pad9 = doc.addObject("PartDesign::Pad", "Pad008")
body3.addObject(pad9)
pad9.Profile = sketch12
pad9.setExpression("Length", "Params.pad9_length")

# Sketch on XY plane
sketch13 = doc.addObject("Sketcher::SketchObject", "Sketch012")
body3.addObject(sketch13)
sketch13.AttachmentSupport = (doc.getObject("XY_Plane002"), [""])
sketch13.MapMode = "FlatFace"
sketch13.AttachmentOffset = App.Placement(V(0, 0, 5.9), App.Rotation())
sketch13.addGeometry(Part.LineSegment(V(-23, 18, 0), V(-23, -16, 0)), False)
sketch13.addGeometry(Part.LineSegment(V(-23, -16, 0), V(26, -16, 0)), False)
sketch13.addGeometry(Part.LineSegment(V(26, -16, 0), V(26, 18, 0)), False)
sketch13.addGeometry(Part.LineSegment(V(26, 18, 0), V(-23, 18, 0)), False)
sketch13.addConstraint(Sketcher.Constraint("Coincident", 0, 2, 1, 1))
sketch13.addConstraint(Sketcher.Constraint("Coincident", 1, 2, 2, 1))
sketch13.addConstraint(Sketcher.Constraint("Coincident", 2, 2, 3, 1))
sketch13.addConstraint(Sketcher.Constraint("Coincident", 3, 2, 0, 1))
sketch13.addConstraint(Sketcher.Constraint("Vertical", 0))
sketch13.addConstraint(Sketcher.Constraint("Horizontal", 1))
sketch13.addConstraint(Sketcher.Constraint("Vertical", 2))
sketch13.addConstraint(Sketcher.Constraint("Horizontal", 3))
sketch13.addConstraint(Sketcher.Constraint("DistanceX", 1, 1, 1, 2, 48.2))
sketch13.addConstraint(Sketcher.Constraint("DistanceY", 0, 2, 0, 1, 33.8))
sketch13.addConstraint(Sketcher.Constraint("DistanceX", 0, 2, -1, 1, 22.6))
sketch13.addConstraint(Sketcher.Constraint("DistanceY", 0, 2, -1, 1, 16.3))
sketch13.setExpression("Constraints[8]", "Params.sketch13_width")
sketch13.setExpression("Constraints[9]", "Params.sketch13_height")
pad10 = doc.addObject("PartDesign::Pad", "Pad009")
body3.addObject(pad10)
pad10.Profile = sketch13
pad10.setExpression("Length", "Params.pad10_length")
pad10.Reversed = True

# Sketch on XY plane
sketch14 = doc.addObject("Sketcher::SketchObject", "Sketch013")
body3.addObject(sketch14)
sketch14.AttachmentSupport = (doc.getObject("XY_Plane002"), [""])
sketch14.MapMode = "FlatFace"
sketch14.AttachmentOffset = App.Placement(V(0, 0, 5.9), App.Rotation())
sketch14.addGeometry(Part.Circle(V(1.5, 0, 0), V(0, 0, 1), 0.8), False)
sketch14.addConstraint(Sketcher.Constraint("PointOnObject", 0, 3, -1))
sketch14.addConstraint(Sketcher.Constraint("Diameter", 0, 1.6))
sketch14.addConstraint(Sketcher.Constraint("DistanceX", -1, 1, 0, 3, 1.5))
sketch14.setExpression("Constraints[1]", "Params.sketch14_diameter")
pocket3 = doc.addObject("PartDesign::Pocket", "Pocket002")
body3.addObject(pocket3)
pocket3.Profile = sketch14
pocket3.setExpression("Length", "Params.pocket3_length")

doc.recompute()
